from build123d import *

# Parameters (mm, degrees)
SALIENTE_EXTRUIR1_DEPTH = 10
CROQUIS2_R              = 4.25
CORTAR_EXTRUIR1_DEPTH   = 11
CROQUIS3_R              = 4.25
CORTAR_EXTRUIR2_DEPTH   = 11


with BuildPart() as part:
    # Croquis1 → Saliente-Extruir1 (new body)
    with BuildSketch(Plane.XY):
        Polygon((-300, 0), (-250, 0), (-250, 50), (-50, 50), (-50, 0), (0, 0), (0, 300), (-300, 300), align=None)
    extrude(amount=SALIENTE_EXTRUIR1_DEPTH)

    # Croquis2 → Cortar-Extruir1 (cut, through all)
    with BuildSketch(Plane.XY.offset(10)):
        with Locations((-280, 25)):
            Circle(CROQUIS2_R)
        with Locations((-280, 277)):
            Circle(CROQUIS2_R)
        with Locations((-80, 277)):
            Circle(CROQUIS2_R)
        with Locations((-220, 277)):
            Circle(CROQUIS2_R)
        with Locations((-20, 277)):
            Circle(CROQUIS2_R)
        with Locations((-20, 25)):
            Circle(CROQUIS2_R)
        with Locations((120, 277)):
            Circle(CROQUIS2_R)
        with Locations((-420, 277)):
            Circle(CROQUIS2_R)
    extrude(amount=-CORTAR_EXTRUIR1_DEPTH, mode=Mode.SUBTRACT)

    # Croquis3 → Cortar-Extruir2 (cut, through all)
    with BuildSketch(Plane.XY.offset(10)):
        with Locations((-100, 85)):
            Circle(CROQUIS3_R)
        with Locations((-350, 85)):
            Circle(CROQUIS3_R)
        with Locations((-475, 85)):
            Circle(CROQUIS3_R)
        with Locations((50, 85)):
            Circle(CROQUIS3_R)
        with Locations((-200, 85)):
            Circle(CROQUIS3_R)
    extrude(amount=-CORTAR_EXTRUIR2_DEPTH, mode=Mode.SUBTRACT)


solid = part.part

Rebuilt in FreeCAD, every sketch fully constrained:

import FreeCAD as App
import Part
import Sketcher
Q = App.Units.Quantity

doc = App.newDocument("Part")
body = doc.addObject("PartDesign::Body", "Body")

sketch1 = doc.addObject("Sketcher::SketchObject", "Sketch")
body.addObject(sketch1)
sketch1.AttachmentSupport = (doc.XY_Plane, [""])
sketch1.MapMode = "FlatFace"
sketch1.addGeometry([
    Part.LineSegment(App.Vector(-300, 0, 0), App.Vector(-250, 0, 0)),
    Part.LineSegment(App.Vector(-250, 0, 0), App.Vector(-250, 50, 0)),
    Part.LineSegment(App.Vector(-250, 50, 0), App.Vector(-50, 50, 0)),
    Part.LineSegment(App.Vector(-50, 50, 0), App.Vector(-50, 0, 0)),
    Part.LineSegment(App.Vector(-50, 0, 0), App.Vector(0, 0, 0)),
    Part.LineSegment(App.Vector(0, 0, 0), App.Vector(0, 300, 0)),
    Part.LineSegment(App.Vector(0, 300, 0), App.Vector(-300, 300, 0)),
    Part.LineSegment(App.Vector(-300, 300, 0), App.Vector(-300, 0, 0)),
], False)
sketch1.addConstraint([
    Sketcher.Constraint("Coincident", 0, 2, 1, 1),
    Sketcher.Constraint("Coincident", 1, 2, 2, 1),
    Sketcher.Constraint("Coincident", 2, 2, 3, 1),
    Sketcher.Constraint("Coincident", 3, 2, 4, 1),
    Sketcher.Constraint("Coincident", 4, 2, 5, 1),
    Sketcher.Constraint("Coincident", 5, 2, 6, 1),
    Sketcher.Constraint("Coincident", 6, 2, 7, 1),
    Sketcher.Constraint("Coincident", 7, 2, 0, 1),
    Sketcher.Constraint("Horizontal", 0),
    Sketcher.Constraint("Vertical", 1),
    Sketcher.Constraint("Horizontal", 2),
    Sketcher.Constraint("Vertical", 3),
    Sketcher.Constraint("Horizontal", 4),
    Sketcher.Constraint("Vertical", 5),
    Sketcher.Constraint("Horizontal", 6),
    Sketcher.Constraint("Vertical", 7),
    Sketcher.Constraint("Coincident", 4, 2, -1, 1),
    Sketcher.Constraint("PointOnObject", 0, 2, -1),
    Sketcher.Constraint("Equal", 0, 4),
    Sketcher.Constraint("Equal", 4, 1),
    Sketcher.Constraint("Equal", 6, 5),
    Sketcher.Constraint("DistanceX", 0, 1, 0, 2, Q("50 mm")),
    Sketcher.Constraint("DistanceX", 2, 1, 2, 2, Q("200 mm")),
])
pad1 = doc.addObject("PartDesign::Pad", "Pad")
body.addObject(pad1)
pad1.Profile = sketch1
pad1.Length = 10

sketch2 = doc.addObject("Sketcher::SketchObject", "Sketch001")
body.addObject(sketch2)
sketch2.AttachmentSupport = (doc.XY_Plane, [""])
sketch2.MapMode = "FlatFace"
sketch2.AttachmentOffset = App.Placement(App.Vector(0, 0, 10), App.Rotation())
sketch2.addGeometry([
    Part.Circle(App.Vector(-280, 25, 0), App.Vector(0, 0, 1), 4.2),
    Part.Circle(App.Vector(-280, 277, 0), App.Vector(0, 0, 1), 4.2),
    Part.Circle(App.Vector(-80, 277, 0), App.Vector(0, 0, 1), 4.2),
    Part.Circle(App.Vector(-220, 277, 0), App.Vector(0, 0, 1), 4.2),
    Part.Circle(App.Vector(-20, 277, 0), App.Vector(0, 0, 1), 4.2),
    Part.Circle(App.Vector(-20, 25, 0), App.Vector(0, 0, 1), 4.2),
    Part.Circle(App.Vector(120, 277, 0), App.Vector(0, 0, 1), 4.2),
    Part.Circle(App.Vector(-420, 277, 0), App.Vector(0, 0, 1), 4.2),
], False)
sketch2.addConstraint([
    Sketcher.Constraint("Equal", 0, 1),
    Sketcher.Constraint("Equal", 1, 2),
    Sketcher.Constraint("Equal", 2, 3),
    Sketcher.Constraint("Equal", 3, 4),
    Sketcher.Constraint("Equal", 4, 5),
    Sketcher.Constraint("Equal", 5, 6),
    Sketcher.Constraint("Equal", 6, 7),
    Sketcher.Constraint("Horizontal", 1, 3, 2, 3),
    Sketcher.Constraint("Horizontal", 2, 3, 3, 3),
    Sketcher.Constraint("Horizontal", 3, 3, 4, 3),
    Sketcher.Constraint("Horizontal", 0, 3, 5, 3),
    Sketcher.Constraint("Horizontal", 4, 3, 6, 3),
    Sketcher.Constraint("Horizontal", 6, 3, 7, 3),
    Sketcher.Constraint("Vertical", 0, 3, 1, 3),
    Sketcher.Constraint("Vertical", 4, 3, 5, 3),
    Sketcher.Constraint("Diameter", 0, Q("8.5 mm")),
    Sketcher.Constraint("DistanceX", 0, 3, -1, 1, Q("280 mm")),
    Sketcher.Constraint("DistanceY", -1, 1, 0, 3, Q("25 mm")),
    Sketcher.Constraint("DistanceY", -1, 1, 1, 3, Q("277 mm")),
    Sketcher.Constraint("DistanceX", 2, 3, -1, 1, Q("80 mm")),
    Sketcher.Constraint("DistanceX", 3, 3, -1, 1, Q("220 mm")),
    Sketcher.Constraint("DistanceX", 4, 3, -1, 1, Q("20 mm")),
    Sketcher.Constraint("DistanceX", -1, 1, 6, 3, Q("120 mm")),
    Sketcher.Constraint("DistanceX", 7, 3, -1, 1, Q("420 mm")),
])
pocket1 = doc.addObject("PartDesign::Pocket", "Pocket")
body.addObject(pocket1)
pocket1.Profile = sketch2
pocket1.Type = "ThroughAll"

sketch3 = doc.addObject("Sketcher::SketchObject", "Sketch002")
body.addObject(sketch3)
sketch3.AttachmentSupport = (doc.XY_Plane, [""])
sketch3.MapMode = "FlatFace"
sketch3.AttachmentOffset = App.Placement(App.Vector(0, 0, 10), App.Rotation())
sketch3.addGeometry([
    Part.Circle(App.Vector(-100, 85, 0), App.Vector(0, 0, 1), 4.2),
    Part.Circle(App.Vector(-350, 85, 0), App.Vector(0, 0, 1), 4.2),
    Part.Circle(App.Vector(-475, 85, 0), App.Vector(0, 0, 1), 4.2),
    Part.Circle(App.Vector(50, 85, 0), App.Vector(0, 0, 1), 4.2),
    Part.Circle(App.Vector(-200, 85, 0), App.Vector(0, 0, 1), 4.2),
], False)
sketch3.addConstraint([
    Sketcher.Constraint("Equal", 0, 1),
    Sketcher.Constraint("Equal", 1, 2),
    Sketcher.Constraint("Equal", 2, 3),
    Sketcher.Constraint("Equal", 3, 4),
    Sketcher.Constraint("Horizontal", 0, 3, 1, 3),
    Sketcher.Constraint("Horizontal", 1, 3, 2, 3),
    Sketcher.Constraint("Horizontal", 2, 3, 3, 3),
    Sketcher.Constraint("Horizontal", 3, 3, 4, 3),
    Sketcher.Constraint("Diameter", 0, Q("8.5 mm")),
    Sketcher.Constraint("DistanceX", 0, 3, -1, 1, Q("100 mm")),
    Sketcher.Constraint("DistanceY", -1, 1, 0, 3, Q("85 mm")),
    Sketcher.Constraint("DistanceX", 1, 3, -1, 1, Q("350 mm")),
    Sketcher.Constraint("DistanceX", 2, 3, -1, 1, Q("475 mm")),
    Sketcher.Constraint("DistanceX", -1, 1, 3, 3, Q("50 mm")),
    Sketcher.Constraint("DistanceX", 4, 3, -1, 1, Q("200 mm")),
])
pocket2 = doc.addObject("PartDesign::Pocket", "Pocket001")
body.addObject(pocket2)
pocket2.Profile = sketch3
pocket2.Type = "ThroughAll"

doc.recompute()
